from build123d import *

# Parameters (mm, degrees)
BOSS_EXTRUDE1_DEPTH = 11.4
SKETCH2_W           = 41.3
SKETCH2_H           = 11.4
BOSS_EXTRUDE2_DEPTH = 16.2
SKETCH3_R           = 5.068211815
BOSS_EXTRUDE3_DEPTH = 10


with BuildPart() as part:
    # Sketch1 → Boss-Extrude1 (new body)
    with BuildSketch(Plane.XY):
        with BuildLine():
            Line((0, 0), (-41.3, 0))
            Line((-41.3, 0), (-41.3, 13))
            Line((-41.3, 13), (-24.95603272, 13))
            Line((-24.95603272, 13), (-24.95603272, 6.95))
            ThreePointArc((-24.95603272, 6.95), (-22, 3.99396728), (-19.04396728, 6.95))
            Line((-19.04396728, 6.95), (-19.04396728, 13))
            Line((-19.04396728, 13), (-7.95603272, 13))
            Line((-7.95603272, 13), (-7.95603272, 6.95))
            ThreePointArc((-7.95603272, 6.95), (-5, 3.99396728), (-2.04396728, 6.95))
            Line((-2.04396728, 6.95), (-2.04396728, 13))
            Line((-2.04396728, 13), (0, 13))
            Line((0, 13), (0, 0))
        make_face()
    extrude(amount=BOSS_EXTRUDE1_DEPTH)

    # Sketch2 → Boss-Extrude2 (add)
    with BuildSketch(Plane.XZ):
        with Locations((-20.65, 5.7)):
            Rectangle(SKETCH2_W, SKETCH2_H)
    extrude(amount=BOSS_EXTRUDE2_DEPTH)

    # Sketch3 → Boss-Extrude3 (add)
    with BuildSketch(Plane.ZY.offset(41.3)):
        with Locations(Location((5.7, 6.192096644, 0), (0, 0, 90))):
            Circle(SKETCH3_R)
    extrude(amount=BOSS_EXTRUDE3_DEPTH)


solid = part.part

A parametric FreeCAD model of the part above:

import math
import FreeCAD as App
import Part
import Sketcher


def add_polygon(sketch, points):
    """Adds a closed chain of lines whose ends are joined by coincident constraints."""
    first, n = sketch.GeometryCount, len(points)
    for a, b in zip(points, points[1:] + points[:1]):
        sketch.addGeometry(Part.LineSegment(App.Vector(*a, 0), App.Vector(*b, 0)), False)
    for i in range(n):
        sketch.addConstraint(Sketcher.Constraint("Coincident", first + i, 2, first + (i + 1) % n, 1))

doc = App.newDocument("Part")
body = doc.addObject("PartDesign::Body", "Body")

# Sketch on XY plane
sketch1 = doc.addObject("Sketcher::SketchObject", "Sketch")
body.addObject(sketch1)
sketch1.AttachmentSupport = (doc.XY_Plane, [""])
sketch1.MapMode = "FlatFace"
sketch1.addGeometry([
    Part.LineSegment(App.Vector(-41.3, 0, 0), App.Vector(0, 0, 0)),  # 0
    Part.LineSegment(App.Vector(0, 0, 0), App.Vector(0, 13, 0)),  # 1
    Part.LineSegment(App.Vector(0, 13, 0), App.Vector(-2, 13, 0)),  # 2
    Part.LineSegment(App.Vector(-2, 13, 0), App.Vector(-2, 7, 0)),  # 3
    Part.ArcOfCircle(Part.Circle(App.Vector(-5, 7, 0), App.Vector(0, 0, 1), 3), math.radians(180), math.radians(360)),  # 4
    Part.LineSegment(App.Vector(-8, 7, 0), App.Vector(-8, 13, 0)),  # 5
    Part.LineSegment(App.Vector(-8, 13, 0), App.Vector(-19, 13, 0)),  # 6
    Part.LineSegment(App.Vector(-19, 13, 0), App.Vector(-19, 7, 0)),  # 7
    Part.ArcOfCircle(Part.Circle(App.Vector(-22, 7, 0), App.Vector(0, 0, 1), 3), math.radians(180), math.radians(360)),  # 8
    Part.LineSegment(App.Vector(-25, 7, 0), App.Vector(-25, 13, 0)),  # 9
    Part.LineSegment(App.Vector(-25, 13, 0), App.Vector(-41.3, 13, 0)),  # 10
    Part.LineSegment(App.Vector(-41.3, 13, 0), App.Vector(-41.3, 0, 0)),  # 11
], False)
sketch1.addConstraint([
    Sketcher.Constraint("Coincident", 0, 2, 1, 1),
    Sketcher.Constraint("Coincident", 1, 2, 2, 1),
    Sketcher.Constraint("Coincident", 2, 2, 3, 1),
    Sketcher.Constraint("Tangent", 3, 2, 4, 2),
    Sketcher.Constraint("Tangent", 4, 1, 5, 1),
    Sketcher.Constraint("Coincident", 5, 2, 6, 1),
    Sketcher.Constraint("Coincident", 6, 2, 7, 1),
    Sketcher.Constraint("Tangent", 7, 2, 8, 2),
    Sketcher.Constraint("Tangent", 8, 1, 9, 1),
    Sketcher.Constraint("Coincident", 9, 2, 10, 1),
    Sketcher.Constraint("Coincident", 10, 2, 11, 1),
    Sketcher.Constraint("Coincident", 11, 2, 0, 1),
    Sketcher.Constraint("Horizontal", 0),
    Sketcher.Constraint("Vertical", 1),
    Sketcher.Constraint("Horizontal", 2),
    Sketcher.Constraint("Vertical", 3),
    Sketcher.Constraint("Vertical", 5),
    Sketcher.Constraint("Horizontal", 6),
    Sketcher.Constraint("Vertical", 7),
    Sketcher.Constraint("Vertical", 9),
    Sketcher.Constraint("Horizontal", 10),
    Sketcher.Constraint("Vertical", 11),
    Sketcher.Constraint("Coincident", 0, 2, -1, 1),
    Sketcher.Constraint("Equal", 4, 8),
    Sketcher.Constraint("Horizontal", 4, 3, 8, 3),
    Sketcher.Constraint("Horizontal", 2, 2, 5, 2),
    Sketcher.Constraint("Horizontal", 6, 2, 9, 2),
    Sketcher.Constraint("DistanceY", 1, 1, 1, 2, 13.0),
    Sketcher.Constraint("DistanceX", 0, 1, 0, 2, 41.3),
    Sketcher.Constraint("DistanceX", 4, 3, -1, 1, 5.0),
    Sketcher.Constraint("DistanceX", 8, 3, -1, 1, 22.0),
    Sketcher.Constraint("DistanceY", 3, 2, 3, 1, 6.05),
    Sketcher.Constraint("Radius", 4, 2.956033),
])
pad1 = doc.addObject("PartDesign::Pad", "Pad")
body.addObject(pad1)
pad1.Profile = sketch1
pad1.Length = 11.4

# Sketch on XZ plane
sketch2 = doc.addObject("Sketcher::SketchObject", "Sketch001")
body.addObject(sketch2)
sketch2.AttachmentSupport = (doc.XZ_Plane, [""])
sketch2.MapMode = "FlatFace"
add_polygon(sketch2, [(-41, 11), (-41, 0), (0, 0), (0, 11)])  # lines 0-3
sketch2.addConstraint([
    Sketcher.Constraint("Vertical", 0),
    Sketcher.Constraint("Horizontal", 1),
    Sketcher.Constraint("Vertical", 2),
    Sketcher.Constraint("Horizontal", 3),
    Sketcher.Constraint("Coincident", 1, 2, -1, 1),
    Sketcher.Constraint("DistanceX", 1, 1, 1, 2, 41.3),
    Sketcher.Constraint("DistanceY", 0, 2, 0, 1, 11.4),
])
pad2 = doc.addObject("PartDesign::Pad", "Pad001")
body.addObject(pad2)
pad2.Profile = sketch2
pad2.Length = 16.2

# Sketch on YZ plane
sketch3 = doc.addObject("Sketcher::SketchObject", "Sketch002")
body.addObject(sketch3)
sketch3.AttachmentSupport = (doc.YZ_Plane, [""])
sketch3.MapMode = "FlatFace"
sketch3.AttachmentOffset = App.Placement(App.Vector(0, 0, -41.3), App.Rotation())
sketch3.addGeometry(Part.Circle(App.Vector(6, 6, 0), App.Vector(0, 0, 1), 5), False)
sketch3.addConstraint([
    Sketcher.Constraint("DistanceY", -1, 1, 0, 3, 5.7),
    Sketcher.Constraint("Diameter", 0, 10.136424),
    Sketcher.Constraint("DistanceX", -1, 1, 0, 3, 6.192097),
])
pad3 = doc.addObject("PartDesign::Pad", "Pad002")
body.addObject(pad3)
pad3.Profile = sketch3
pad3.Length = 10
pad3.Reversed = True

doc.recompute()
